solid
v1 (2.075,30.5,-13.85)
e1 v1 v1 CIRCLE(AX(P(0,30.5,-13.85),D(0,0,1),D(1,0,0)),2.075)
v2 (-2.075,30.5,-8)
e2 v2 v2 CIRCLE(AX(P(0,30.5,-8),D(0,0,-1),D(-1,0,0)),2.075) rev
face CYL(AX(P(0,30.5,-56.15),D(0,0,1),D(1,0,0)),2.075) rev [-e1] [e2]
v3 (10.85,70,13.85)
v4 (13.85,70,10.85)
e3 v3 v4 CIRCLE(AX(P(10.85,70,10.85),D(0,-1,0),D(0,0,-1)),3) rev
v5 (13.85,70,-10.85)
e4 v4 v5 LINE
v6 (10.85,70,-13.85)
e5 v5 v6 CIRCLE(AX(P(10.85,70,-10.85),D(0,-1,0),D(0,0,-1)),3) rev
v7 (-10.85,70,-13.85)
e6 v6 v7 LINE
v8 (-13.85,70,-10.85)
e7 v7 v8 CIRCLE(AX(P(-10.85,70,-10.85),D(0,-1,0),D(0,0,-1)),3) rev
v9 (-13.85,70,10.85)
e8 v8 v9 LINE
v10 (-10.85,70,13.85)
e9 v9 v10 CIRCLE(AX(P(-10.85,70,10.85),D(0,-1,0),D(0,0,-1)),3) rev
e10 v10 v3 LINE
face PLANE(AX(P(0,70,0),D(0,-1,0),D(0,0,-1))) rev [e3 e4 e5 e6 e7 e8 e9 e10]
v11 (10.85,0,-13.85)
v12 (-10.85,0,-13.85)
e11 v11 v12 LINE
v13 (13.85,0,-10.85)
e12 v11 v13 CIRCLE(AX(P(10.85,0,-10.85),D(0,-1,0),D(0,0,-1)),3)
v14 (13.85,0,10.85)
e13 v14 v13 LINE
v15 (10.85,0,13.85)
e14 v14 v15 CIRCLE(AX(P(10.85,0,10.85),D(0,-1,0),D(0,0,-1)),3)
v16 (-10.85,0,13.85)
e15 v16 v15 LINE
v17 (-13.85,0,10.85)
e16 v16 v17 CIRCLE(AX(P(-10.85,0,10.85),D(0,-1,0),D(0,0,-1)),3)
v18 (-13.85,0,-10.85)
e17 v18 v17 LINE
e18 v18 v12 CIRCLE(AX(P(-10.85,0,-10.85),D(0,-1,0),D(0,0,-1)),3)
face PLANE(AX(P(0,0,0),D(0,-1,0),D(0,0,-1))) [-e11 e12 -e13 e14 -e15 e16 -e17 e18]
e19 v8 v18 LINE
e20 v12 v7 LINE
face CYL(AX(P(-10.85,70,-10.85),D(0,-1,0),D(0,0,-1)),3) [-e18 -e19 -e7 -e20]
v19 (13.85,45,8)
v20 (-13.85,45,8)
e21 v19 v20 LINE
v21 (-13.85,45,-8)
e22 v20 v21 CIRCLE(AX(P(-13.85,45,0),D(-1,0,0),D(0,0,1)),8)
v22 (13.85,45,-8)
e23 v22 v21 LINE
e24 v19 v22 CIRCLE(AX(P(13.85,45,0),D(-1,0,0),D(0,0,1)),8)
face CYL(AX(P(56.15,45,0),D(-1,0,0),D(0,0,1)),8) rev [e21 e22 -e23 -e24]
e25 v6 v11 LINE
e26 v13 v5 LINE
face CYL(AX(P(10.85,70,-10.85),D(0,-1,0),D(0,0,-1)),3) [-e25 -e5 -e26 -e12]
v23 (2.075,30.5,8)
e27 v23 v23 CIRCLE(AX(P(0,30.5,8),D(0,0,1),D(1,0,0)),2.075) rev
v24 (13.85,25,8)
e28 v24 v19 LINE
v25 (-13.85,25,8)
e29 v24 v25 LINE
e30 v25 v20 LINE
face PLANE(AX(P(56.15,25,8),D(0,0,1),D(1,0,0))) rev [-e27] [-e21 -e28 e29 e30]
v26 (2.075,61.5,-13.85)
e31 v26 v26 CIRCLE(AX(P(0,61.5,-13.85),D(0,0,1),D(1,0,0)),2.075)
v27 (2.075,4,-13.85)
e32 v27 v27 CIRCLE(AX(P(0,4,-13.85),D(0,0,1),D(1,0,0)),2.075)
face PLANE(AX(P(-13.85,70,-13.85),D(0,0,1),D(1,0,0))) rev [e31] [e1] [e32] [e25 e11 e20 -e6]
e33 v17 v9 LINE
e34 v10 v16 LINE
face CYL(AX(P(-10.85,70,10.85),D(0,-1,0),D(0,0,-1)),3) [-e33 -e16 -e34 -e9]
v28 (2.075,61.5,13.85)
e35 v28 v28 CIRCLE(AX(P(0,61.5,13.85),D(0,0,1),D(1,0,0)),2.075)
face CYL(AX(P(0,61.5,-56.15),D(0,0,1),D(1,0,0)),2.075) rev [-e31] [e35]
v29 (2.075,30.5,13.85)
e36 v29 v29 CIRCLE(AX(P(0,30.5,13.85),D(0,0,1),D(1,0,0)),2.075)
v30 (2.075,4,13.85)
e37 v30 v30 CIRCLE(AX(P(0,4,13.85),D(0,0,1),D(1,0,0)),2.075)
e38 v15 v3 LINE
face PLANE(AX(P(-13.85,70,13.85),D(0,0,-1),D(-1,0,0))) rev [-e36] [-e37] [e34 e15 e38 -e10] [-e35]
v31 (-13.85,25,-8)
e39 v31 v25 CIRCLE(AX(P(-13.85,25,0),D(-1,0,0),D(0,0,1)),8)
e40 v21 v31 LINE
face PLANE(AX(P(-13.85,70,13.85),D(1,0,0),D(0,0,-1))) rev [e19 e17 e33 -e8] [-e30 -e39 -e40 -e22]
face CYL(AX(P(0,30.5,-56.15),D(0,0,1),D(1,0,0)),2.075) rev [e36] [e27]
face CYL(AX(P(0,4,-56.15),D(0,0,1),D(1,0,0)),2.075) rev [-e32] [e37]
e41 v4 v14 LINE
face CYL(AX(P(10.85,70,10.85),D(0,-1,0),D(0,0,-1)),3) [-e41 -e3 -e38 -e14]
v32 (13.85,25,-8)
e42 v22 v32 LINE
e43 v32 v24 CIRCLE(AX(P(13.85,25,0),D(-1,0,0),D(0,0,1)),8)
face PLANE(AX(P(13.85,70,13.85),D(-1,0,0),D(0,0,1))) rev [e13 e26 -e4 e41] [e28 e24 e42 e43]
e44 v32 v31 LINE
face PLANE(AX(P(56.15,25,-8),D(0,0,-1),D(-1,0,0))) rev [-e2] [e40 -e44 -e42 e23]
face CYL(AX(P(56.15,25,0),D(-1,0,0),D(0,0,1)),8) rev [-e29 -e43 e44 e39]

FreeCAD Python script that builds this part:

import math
import FreeCAD as App
import Part
import Sketcher


def edges_at(feature, points):
    """Names of the edges that pass closest to the given points."""
    edges = feature.Shape.Edges
    near = lambda p: min(range(len(edges)), key=lambda i: edges[i].distToShape(Part.Vertex(*p))[0])
    return sorted({f"Edge{near(p) + 1}" for p in points})

doc = App.newDocument("Part")
body = doc.addObject("PartDesign::Body", "Body")

# Sketch on XZ plane
sketch1 = body.newObject("Sketcher::SketchObject", "Sketch")
sketch1.AttachmentSupport = (doc.getObject("XZ_Plane"), [""])
sketch1.MapMode = "FlatFace"
sketch1.addGeometry([
    Part.LineSegment(App.Vector(-14, -14, 0), App.Vector(-14, 14, 0)),
    Part.LineSegment(App.Vector(-14, 14, 0), App.Vector(14, 14, 0)),
    Part.LineSegment(App.Vector(14, 14, 0), App.Vector(14, -14, 0)),
    Part.LineSegment(App.Vector(14, -14, 0), App.Vector(-14, -14, 0)),
], False)
sketch1.addConstraint([
    Sketcher.Constraint("Coincident", 0, 2, 1, 1),
    Sketcher.Constraint("Coincident", 1, 2, 2, 1),
    Sketcher.Constraint("Coincident", 2, 2, 3, 1),
    Sketcher.Constraint("Coincident", 3, 2, 0, 1),
    Sketcher.Constraint("Vertical", 0),
    Sketcher.Constraint("Horizontal", 1),
    Sketcher.Constraint("Vertical", 2),
    Sketcher.Constraint("Horizontal", 3),
    Sketcher.Constraint("Symmetric", 0, 2, 2, 2, -1, 1),
    Sketcher.Constraint("Equal", 3, 0),
    Sketcher.Constraint("DistanceX", 1, 1, 1, 2, 27.7),
])
pad1 = body.newObject("PartDesign::Pad", "Pad")
pad1.Profile = sketch1
pad1.Length = 70
pad1.Reversed = True

# Sketch on XY plane
sketch2 = body.newObject("Sketcher::SketchObject", "Sketch001")
sketch2.AttachmentSupport = (doc.getObject("XY_Plane"), [""])
sketch2.MapMode = "FlatFace"
sketch2.AttachmentOffset = App.Placement(App.Vector(0, 0, 13.85), App.Rotation())
sketch2.addGeometry([
    Part.Circle(App.Vector(0, 4, 0), App.Vector(0, 0, 1), 2.1),
    Part.Circle(App.Vector(0, 30.5, 0), App.Vector(0, 0, 1), 2.1),
    Part.Circle(App.Vector(0, 61.5, 0), App.Vector(0, 0, 1), 2.1),
], False)
sketch2.addConstraint([
    Sketcher.Constraint("Equal", 0, 1),
    Sketcher.Constraint("Equal", 1, 2),
    Sketcher.Constraint("PointOnObject", 0, 3, -2),
    Sketcher.Constraint("PointOnObject", 1, 3, -2),
    Sketcher.Constraint("PointOnObject", 2, 3, -2),
    Sketcher.Constraint("Diameter", 0, 4.15),
    Sketcher.Constraint("DistanceY", -1, 1, 0, 3, 4.0),
    Sketcher.Constraint("DistanceY", 1, 3, 2, 3, 31.0),
    Sketcher.Constraint("DistanceY", -1, 1, 1, 3, 30.5),
])
pocket1 = body.newObject("PartDesign::Pocket", "Pocket")
pocket1.Profile = sketch2
pocket1.Length = 70

# Sketch on YZ plane
sketch3 = body.newObject("Sketcher::SketchObject", "Sketch002")
sketch3.AttachmentSupport = (doc.getObject("YZ_Plane"), [""])
sketch3.MapMode = "FlatFace"
sketch3.AttachmentOffset = App.Placement(App.Vector(0, 0, -13.85), App.Rotation())
sketch3.addGeometry([
    Part.LineSegment(App.Vector(45, -8, 0), App.Vector(25, -8, 0)),
    Part.ArcOfCircle(Part.Circle(App.Vector(25, 0, 0), App.Vector(0, 0, 1), 8), math.radians(90), math.radians(270)),
    Part.LineSegment(App.Vector(25, 8, 0), App.Vector(45, 8, 0)),
    Part.ArcOfCircle(Part.Circle(App.Vector(45, 0, 0), App.Vector(0, 0, 1), 8), math.radians(-90), math.radians(90)),
], False)
sketch3.addConstraint([
    Sketcher.Constraint("Tangent", 0, 2, 1, 2),
    Sketcher.Constraint("Tangent", 1, 1, 2, 1),
    Sketcher.Constraint("Tangent", 2, 2, 3, 2),
    Sketcher.Constraint("Tangent", 3, 1, 0, 1),
    Sketcher.Constraint("Horizontal", 0),
    Sketcher.Constraint("Horizontal", 2),
    Sketcher.Constraint("PointOnObject", 1, 3, -1),
    Sketcher.Constraint("Radius", 1, 8.0),
    Sketcher.Constraint("DistanceX", 0, 2, 0, 1, 20.0),
    Sketcher.Constraint("DistanceX", -1, 1, 1, 3, 25.0),
])
pocket2 = body.newObject("PartDesign::Pocket", "Pocket001")
pocket2.Profile = sketch3
pocket2.Length = 70
pocket2.Reversed = True
doc.recompute()

fillet = body.newObject("PartDesign::Fillet", "Fillet")
fillet.Base = (pocket2, edges_at(pocket2, [
    (13.85, 35, 13.85),
    (-13.85, 35, 13.85),
    (-13.85, 35, -13.85),
    (13.85, 35, -13.85),
]))
fillet.Radius = 3

doc.recompute()
